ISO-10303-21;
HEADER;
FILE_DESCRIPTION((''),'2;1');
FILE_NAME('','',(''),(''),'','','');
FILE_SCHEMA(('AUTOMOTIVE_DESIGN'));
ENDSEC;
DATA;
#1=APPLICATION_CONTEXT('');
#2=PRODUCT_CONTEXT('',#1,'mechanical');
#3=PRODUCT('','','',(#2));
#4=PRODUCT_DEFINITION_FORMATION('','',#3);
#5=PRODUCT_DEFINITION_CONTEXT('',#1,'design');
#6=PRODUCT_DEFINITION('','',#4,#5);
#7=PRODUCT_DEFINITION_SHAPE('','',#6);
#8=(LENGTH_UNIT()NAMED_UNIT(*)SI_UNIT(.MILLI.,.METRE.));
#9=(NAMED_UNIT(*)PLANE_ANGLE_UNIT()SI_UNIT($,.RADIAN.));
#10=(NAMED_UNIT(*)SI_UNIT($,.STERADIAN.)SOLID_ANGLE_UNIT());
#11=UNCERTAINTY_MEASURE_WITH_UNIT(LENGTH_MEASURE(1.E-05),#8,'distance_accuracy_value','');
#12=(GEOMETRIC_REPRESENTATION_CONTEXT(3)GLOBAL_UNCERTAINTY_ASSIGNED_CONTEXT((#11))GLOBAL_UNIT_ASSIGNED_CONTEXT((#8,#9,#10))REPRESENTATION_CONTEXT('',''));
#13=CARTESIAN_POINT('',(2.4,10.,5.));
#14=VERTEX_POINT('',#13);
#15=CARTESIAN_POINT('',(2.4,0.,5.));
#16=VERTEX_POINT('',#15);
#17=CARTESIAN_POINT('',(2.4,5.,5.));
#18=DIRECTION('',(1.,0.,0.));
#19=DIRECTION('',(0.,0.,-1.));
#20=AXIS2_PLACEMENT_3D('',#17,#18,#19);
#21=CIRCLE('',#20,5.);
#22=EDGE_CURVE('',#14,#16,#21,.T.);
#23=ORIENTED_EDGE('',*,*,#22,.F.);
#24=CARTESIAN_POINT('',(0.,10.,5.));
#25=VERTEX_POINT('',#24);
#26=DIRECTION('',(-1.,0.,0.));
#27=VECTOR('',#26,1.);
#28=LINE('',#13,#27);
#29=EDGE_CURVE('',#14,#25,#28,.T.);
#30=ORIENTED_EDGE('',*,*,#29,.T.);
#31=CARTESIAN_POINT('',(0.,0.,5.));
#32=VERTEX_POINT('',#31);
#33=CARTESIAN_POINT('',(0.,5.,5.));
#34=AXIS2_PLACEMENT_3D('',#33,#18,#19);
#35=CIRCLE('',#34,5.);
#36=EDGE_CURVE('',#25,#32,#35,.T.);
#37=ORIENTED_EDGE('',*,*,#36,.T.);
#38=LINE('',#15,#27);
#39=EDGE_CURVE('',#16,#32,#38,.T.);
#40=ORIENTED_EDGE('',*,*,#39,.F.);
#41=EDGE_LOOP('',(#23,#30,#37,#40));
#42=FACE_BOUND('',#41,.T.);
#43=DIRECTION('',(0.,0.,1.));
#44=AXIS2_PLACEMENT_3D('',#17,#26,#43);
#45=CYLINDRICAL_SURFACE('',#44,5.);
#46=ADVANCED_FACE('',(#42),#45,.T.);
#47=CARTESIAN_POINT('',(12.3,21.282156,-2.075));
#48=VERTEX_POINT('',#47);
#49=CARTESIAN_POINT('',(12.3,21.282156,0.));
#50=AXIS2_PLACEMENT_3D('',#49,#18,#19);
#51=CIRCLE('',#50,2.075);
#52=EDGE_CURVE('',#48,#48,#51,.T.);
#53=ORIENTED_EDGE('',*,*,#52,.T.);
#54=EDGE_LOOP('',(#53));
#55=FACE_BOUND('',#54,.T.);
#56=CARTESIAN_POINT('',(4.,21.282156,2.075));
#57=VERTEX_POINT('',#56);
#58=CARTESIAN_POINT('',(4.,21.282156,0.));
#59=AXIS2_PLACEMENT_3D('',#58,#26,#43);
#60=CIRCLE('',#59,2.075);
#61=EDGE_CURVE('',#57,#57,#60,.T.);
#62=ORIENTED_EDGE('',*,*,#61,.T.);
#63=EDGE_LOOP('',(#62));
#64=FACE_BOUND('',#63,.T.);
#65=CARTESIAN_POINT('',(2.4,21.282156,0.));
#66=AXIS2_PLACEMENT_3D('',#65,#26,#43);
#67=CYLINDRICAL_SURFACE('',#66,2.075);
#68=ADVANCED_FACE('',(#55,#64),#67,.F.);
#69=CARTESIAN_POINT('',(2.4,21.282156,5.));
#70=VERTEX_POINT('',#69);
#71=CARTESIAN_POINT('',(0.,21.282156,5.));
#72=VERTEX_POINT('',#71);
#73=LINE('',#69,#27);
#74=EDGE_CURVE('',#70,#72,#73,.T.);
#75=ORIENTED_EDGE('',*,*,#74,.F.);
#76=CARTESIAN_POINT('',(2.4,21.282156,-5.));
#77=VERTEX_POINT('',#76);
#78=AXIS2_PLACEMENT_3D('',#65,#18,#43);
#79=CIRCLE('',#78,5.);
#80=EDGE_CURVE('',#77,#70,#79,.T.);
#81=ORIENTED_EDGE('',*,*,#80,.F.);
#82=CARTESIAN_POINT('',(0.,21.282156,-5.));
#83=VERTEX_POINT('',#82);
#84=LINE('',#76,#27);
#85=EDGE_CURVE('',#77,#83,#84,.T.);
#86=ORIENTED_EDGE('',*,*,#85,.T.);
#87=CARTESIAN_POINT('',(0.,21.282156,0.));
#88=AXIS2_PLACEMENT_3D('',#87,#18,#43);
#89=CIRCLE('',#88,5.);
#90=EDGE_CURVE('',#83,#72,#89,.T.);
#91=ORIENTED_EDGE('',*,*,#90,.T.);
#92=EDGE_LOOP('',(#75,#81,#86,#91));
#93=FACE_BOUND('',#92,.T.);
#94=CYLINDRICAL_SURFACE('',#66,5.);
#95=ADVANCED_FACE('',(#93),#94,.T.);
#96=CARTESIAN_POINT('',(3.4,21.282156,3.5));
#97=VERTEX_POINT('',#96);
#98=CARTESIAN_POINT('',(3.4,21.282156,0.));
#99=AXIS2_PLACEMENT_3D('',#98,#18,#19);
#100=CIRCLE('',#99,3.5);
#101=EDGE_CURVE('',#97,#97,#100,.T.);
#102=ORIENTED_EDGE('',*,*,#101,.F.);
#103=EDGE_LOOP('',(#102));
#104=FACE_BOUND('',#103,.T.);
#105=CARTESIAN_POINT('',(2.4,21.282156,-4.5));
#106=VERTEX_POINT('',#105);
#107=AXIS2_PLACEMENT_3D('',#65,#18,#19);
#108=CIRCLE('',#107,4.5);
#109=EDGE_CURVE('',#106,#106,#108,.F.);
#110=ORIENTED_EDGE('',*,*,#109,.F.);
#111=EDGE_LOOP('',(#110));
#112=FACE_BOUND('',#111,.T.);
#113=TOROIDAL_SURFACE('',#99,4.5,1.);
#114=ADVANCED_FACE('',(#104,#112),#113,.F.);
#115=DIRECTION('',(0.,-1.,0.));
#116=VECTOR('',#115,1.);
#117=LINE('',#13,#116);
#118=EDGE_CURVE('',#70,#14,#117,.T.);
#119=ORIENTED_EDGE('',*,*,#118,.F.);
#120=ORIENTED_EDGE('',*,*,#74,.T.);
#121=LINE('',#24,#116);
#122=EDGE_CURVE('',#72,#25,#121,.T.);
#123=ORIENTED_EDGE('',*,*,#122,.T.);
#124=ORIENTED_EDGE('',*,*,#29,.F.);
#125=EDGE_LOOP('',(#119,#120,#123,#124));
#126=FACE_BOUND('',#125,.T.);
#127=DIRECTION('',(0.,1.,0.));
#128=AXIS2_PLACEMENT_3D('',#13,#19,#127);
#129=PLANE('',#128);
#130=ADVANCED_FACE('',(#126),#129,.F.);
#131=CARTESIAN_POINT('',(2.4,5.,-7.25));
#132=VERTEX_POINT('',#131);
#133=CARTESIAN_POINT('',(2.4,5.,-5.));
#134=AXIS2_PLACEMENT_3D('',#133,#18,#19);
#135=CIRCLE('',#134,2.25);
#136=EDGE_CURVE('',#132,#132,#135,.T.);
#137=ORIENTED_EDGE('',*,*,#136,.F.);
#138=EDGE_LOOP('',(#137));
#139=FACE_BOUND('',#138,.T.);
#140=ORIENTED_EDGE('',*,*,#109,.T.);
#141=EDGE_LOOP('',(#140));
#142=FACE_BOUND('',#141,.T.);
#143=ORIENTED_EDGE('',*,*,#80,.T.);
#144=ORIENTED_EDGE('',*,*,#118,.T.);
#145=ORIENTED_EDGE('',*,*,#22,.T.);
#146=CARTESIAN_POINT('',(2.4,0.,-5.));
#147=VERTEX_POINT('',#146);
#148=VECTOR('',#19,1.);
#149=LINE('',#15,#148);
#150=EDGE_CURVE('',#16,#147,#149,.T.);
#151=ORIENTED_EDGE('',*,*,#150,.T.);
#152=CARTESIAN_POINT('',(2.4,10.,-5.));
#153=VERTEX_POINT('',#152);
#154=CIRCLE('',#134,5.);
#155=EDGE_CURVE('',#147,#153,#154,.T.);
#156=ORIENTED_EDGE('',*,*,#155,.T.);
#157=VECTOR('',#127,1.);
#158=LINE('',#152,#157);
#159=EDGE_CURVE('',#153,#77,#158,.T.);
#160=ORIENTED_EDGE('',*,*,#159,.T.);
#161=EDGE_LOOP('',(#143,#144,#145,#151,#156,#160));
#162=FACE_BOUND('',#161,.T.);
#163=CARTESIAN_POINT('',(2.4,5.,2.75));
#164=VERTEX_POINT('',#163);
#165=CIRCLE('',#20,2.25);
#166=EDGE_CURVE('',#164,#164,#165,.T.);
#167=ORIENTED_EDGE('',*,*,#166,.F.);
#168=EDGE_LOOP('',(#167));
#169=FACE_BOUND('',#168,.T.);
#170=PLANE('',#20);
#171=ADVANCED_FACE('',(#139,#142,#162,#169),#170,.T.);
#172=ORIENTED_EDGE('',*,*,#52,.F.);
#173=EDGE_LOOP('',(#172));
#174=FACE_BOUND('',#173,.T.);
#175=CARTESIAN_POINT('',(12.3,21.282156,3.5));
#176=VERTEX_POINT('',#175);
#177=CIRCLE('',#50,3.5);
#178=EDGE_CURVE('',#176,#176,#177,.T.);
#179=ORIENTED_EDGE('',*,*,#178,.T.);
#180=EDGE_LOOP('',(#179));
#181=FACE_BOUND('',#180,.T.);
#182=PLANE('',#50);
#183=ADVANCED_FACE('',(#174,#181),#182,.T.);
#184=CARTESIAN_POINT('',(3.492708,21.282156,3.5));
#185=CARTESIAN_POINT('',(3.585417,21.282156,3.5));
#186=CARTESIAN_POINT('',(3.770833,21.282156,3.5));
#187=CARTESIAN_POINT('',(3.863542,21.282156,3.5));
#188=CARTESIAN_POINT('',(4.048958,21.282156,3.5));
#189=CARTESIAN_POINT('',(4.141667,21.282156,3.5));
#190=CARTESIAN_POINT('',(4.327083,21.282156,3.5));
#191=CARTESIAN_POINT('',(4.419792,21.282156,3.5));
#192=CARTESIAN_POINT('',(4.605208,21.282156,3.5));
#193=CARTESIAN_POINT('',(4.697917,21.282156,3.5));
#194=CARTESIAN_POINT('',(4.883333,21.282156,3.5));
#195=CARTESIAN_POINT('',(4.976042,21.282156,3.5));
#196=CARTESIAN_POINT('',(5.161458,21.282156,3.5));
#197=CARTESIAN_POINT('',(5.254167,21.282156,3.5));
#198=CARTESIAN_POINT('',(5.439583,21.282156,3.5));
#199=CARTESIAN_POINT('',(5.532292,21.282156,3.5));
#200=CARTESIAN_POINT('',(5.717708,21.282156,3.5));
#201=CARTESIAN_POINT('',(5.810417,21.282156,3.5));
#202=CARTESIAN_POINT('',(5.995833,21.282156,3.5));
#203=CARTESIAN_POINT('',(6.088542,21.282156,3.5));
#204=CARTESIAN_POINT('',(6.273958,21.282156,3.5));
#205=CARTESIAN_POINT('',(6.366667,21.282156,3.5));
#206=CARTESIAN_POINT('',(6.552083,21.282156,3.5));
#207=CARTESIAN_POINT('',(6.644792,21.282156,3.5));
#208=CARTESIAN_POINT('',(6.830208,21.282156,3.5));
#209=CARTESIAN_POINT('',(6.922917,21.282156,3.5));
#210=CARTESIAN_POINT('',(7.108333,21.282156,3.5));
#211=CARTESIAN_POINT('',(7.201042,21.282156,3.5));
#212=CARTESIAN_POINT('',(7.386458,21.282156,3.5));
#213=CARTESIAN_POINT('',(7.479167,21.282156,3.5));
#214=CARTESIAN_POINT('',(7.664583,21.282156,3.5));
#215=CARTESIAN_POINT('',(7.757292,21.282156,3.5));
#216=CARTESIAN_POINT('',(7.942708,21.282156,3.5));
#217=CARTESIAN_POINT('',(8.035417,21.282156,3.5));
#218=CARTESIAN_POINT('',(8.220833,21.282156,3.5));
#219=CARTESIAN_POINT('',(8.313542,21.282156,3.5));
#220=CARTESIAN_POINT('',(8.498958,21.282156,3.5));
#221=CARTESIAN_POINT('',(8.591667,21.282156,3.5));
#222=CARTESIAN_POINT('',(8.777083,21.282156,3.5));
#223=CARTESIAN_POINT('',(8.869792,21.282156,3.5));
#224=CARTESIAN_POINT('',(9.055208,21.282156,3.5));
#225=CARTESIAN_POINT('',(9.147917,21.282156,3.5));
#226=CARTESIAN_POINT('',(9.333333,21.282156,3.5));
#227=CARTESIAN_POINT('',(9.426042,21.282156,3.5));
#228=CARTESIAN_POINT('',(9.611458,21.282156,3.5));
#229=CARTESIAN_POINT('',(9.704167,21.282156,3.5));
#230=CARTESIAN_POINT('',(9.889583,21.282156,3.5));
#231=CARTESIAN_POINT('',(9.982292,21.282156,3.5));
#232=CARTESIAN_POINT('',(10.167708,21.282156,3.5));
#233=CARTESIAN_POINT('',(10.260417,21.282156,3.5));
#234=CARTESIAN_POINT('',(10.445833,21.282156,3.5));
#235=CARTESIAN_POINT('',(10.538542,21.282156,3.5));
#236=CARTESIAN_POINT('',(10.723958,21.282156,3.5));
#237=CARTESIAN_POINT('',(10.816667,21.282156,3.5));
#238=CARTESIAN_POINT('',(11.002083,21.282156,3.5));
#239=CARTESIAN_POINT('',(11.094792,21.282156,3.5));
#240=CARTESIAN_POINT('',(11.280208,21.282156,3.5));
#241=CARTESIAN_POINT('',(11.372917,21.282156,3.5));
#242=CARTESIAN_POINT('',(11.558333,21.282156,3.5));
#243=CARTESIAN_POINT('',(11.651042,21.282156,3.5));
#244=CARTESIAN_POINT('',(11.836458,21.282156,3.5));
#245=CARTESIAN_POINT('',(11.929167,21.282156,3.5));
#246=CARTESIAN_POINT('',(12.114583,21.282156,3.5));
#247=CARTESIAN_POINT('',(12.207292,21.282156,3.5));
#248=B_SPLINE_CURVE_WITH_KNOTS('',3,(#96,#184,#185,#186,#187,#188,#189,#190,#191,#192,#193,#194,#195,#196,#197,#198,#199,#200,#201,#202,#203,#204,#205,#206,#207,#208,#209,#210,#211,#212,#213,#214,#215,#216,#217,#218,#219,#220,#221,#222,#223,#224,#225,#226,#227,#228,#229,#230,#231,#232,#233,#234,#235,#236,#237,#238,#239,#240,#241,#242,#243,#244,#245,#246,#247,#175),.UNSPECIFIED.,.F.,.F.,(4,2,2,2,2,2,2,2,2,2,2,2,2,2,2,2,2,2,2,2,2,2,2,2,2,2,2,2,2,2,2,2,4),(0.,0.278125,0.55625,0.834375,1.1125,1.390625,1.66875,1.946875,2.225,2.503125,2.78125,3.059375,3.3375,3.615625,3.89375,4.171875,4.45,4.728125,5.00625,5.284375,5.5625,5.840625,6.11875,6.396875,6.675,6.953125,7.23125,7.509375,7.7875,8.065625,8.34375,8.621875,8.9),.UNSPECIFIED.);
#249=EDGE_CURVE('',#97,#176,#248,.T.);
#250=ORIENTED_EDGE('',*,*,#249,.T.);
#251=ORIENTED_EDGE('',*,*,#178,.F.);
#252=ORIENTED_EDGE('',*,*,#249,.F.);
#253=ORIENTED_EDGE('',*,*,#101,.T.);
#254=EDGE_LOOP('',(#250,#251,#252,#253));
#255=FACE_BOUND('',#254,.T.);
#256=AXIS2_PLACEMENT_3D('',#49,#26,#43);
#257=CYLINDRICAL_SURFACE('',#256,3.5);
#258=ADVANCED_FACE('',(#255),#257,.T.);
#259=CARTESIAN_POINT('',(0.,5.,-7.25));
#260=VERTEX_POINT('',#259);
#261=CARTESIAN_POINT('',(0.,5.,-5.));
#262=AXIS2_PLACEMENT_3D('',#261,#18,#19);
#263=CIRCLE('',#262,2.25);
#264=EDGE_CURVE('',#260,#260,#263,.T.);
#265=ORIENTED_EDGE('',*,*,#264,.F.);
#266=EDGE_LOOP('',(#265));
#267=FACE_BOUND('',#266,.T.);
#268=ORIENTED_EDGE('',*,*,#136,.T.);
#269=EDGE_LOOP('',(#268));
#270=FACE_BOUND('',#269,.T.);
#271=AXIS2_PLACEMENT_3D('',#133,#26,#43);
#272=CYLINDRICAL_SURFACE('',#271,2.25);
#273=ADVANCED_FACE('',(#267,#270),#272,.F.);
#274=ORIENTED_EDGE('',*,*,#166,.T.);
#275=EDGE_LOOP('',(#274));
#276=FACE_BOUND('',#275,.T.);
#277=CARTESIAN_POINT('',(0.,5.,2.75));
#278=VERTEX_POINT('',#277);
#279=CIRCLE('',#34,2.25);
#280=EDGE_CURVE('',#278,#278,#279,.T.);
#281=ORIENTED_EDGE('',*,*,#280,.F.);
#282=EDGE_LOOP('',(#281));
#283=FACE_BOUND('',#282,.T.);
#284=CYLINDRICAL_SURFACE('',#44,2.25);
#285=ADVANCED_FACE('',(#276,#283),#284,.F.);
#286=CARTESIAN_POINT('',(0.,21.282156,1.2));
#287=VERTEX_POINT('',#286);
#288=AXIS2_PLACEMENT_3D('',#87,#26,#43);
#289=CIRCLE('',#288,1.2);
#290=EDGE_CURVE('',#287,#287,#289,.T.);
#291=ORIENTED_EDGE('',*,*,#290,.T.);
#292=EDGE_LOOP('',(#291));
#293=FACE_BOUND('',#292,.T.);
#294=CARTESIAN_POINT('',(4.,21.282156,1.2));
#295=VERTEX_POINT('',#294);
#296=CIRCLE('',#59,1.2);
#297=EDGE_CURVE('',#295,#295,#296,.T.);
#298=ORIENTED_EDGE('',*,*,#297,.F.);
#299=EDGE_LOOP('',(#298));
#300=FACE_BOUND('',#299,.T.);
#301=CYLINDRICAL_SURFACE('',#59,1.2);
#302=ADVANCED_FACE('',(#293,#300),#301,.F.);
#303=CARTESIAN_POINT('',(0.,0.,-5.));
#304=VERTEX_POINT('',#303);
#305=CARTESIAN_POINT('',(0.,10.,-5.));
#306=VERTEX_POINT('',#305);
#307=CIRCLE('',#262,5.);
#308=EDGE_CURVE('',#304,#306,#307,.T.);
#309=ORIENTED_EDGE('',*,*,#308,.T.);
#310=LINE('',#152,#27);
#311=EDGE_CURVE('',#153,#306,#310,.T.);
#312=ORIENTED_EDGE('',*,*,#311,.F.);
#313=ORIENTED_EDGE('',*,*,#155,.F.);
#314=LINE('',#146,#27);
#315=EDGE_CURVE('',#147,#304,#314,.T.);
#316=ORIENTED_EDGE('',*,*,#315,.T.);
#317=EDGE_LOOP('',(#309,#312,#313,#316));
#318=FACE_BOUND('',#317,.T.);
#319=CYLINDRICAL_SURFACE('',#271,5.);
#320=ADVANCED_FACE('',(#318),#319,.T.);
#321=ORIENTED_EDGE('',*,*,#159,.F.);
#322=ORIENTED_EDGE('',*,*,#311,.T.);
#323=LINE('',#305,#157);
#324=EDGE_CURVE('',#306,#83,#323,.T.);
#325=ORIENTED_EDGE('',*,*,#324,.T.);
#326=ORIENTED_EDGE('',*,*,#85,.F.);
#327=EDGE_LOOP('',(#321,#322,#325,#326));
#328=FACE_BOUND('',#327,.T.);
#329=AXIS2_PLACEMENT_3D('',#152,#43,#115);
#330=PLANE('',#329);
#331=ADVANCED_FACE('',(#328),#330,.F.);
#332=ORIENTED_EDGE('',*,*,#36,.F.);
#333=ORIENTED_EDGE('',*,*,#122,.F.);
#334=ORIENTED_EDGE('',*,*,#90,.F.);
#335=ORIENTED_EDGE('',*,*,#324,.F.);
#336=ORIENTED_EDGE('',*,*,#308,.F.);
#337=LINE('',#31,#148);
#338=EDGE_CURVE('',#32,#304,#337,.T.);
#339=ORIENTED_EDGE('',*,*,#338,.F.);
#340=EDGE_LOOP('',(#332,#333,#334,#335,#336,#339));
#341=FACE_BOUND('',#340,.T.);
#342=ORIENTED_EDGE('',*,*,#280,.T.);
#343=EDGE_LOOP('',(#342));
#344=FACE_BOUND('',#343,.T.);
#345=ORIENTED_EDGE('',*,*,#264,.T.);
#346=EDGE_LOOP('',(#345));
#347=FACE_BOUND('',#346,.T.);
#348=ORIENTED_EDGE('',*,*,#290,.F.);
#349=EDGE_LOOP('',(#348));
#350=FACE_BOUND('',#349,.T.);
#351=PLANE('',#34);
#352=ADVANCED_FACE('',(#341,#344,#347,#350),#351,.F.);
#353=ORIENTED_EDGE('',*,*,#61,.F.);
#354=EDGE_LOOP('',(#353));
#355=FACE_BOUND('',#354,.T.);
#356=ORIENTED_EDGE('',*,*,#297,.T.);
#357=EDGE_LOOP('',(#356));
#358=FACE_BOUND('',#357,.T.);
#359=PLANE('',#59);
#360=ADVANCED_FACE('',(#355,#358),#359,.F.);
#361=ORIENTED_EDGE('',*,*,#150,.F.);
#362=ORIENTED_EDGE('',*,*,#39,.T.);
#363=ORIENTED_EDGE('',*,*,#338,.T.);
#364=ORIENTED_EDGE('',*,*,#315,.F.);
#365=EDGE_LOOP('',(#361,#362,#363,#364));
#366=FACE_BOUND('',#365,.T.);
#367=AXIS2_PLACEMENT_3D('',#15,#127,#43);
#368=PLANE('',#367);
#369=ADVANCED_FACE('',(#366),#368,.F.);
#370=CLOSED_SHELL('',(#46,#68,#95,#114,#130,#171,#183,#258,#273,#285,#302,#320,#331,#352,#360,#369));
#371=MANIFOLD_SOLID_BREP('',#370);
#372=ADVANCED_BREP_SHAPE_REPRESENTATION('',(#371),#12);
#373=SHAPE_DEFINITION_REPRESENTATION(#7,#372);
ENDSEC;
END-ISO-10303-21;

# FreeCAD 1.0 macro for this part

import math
import FreeCAD as App
import Part
import Sketcher
Q = App.Units.Quantity


def edges_at(feature, points):
    """Names of the edges that pass closest to the given points."""
    edges = feature.Shape.Edges
    near = lambda p: min(range(len(edges)), key=lambda i: edges[i].distToShape(Part.Vertex(*p))[0])
    return sorted({f"Edge{near(p) + 1}" for p in points})

doc = App.newDocument("Part")
body = doc.addObject("PartDesign::Body", "Body")

# Sketch on YZ plane
sketch1 = body.newObject("Sketcher::SketchObject", "Sketch")
sketch1.AttachmentSupport = (doc.getObject("YZ_Plane"), [""])
sketch1.MapMode = "FlatFace"
sketch1.addGeometry([
    Part.LineSegment(App.Vector(0, 5, 0), App.Vector(0, -5, 0)),  # 0
    Part.ArcOfCircle(Part.Circle(App.Vector(5, -5, 0), App.Vector(0, 0, 1), 5), math.radians(180), math.radians(360)),  # 1
    Part.LineSegment(App.Vector(10, -5, 0), App.Vector(21.3, -5, 0)),  # 2
    Part.ArcOfCircle(Part.Circle(App.Vector(21.3, 0, 0), App.Vector(0, 0, 1), 5), math.radians(-90), math.radians(90)),  # 3
    Part.LineSegment(App.Vector(21.3, 5, 0), App.Vector(10, 5, 0)),  # 4
    Part.ArcOfCircle(Part.Circle(App.Vector(5, 5, 0), App.Vector(0, 0, 1), 5), math.radians(0), math.radians(180)),  # 5
    Part.Circle(App.Vector(5, 5, 0), App.Vector(0, 0, 1), 2.2),  # 6
    Part.Circle(App.Vector(5, -5, 0), App.Vector(0, 0, 1), 2.2),  # 7
    Part.Circle(App.Vector(21.3, 0, 0), App.Vector(0, 0, 1), 2.1),  # 8
], False)
sketch1.addConstraint([
    Sketcher.Constraint("Tangent", 0, 2, 1, 1),
    Sketcher.Constraint("Coincident", 1, 2, 2, 1),
    Sketcher.Constraint("Tangent", 2, 2, 3, 1),
    Sketcher.Constraint("Tangent", 3, 2, 4, 1),
    Sketcher.Constraint("Coincident", 4, 2, 5, 1),
    Sketcher.Constraint("Tangent", 5, 2, 0, 1),
    Sketcher.Constraint("Vertical", 0),
    Sketcher.Constraint("Horizontal", 2),
    Sketcher.Constraint("Horizontal", 4),
    Sketcher.Constraint("Coincident", 6, 3, 5, 3),
    Sketcher.Constraint("Coincident", 7, 3, 1, 3),
    Sketcher.Constraint("Coincident", 8, 3, 3, 3),
    Sketcher.Constraint("Equal", 1, 3),
    Sketcher.Constraint("Equal", 3, 5),
    Sketcher.Constraint("Equal", 6, 7),
    Sketcher.Constraint("Symmetric", 0, 2, 5, 2, -1, 1),
    Sketcher.Constraint("PointOnObject", 3, 3, -1),
    Sketcher.Constraint("Horizontal", 0, 2, 1, 2),
    Sketcher.Constraint("Radius", 1, Q("5 mm")),
    Sketcher.Constraint("Diameter", 6, Q("4.5 mm")),
    Sketcher.Constraint("Diameter", 8, Q("4.15 mm")),
    Sketcher.Constraint("DistanceX", 2, 1, 2, 2, Q("11.282156 mm")),
])
pad1 = body.newObject("PartDesign::Pad", "Pad")
pad1.Profile = sketch1
pad1.Length = 2.4

# Sketch on YZ plane
sketch2 = body.newObject("Sketcher::SketchObject", "Sketch001")
sketch2.AttachmentSupport = (doc.getObject("YZ_Plane"), [""])
sketch2.MapMode = "FlatFace"
sketch2.AttachmentOffset = App.Placement(App.Vector(0, 0, 2.4), App.Rotation())
sketch2.addGeometry([
    Part.Circle(App.Vector(21.3, 0, 0), App.Vector(0, 0, 1), 3.5),
    Part.Circle(App.Vector(21.3, 0, 0), App.Vector(0, 0, 1), 2.1),
], False)
sketch2.addConstraint([
    Sketcher.Constraint("Coincident", 1, 3, 0, 3),
    Sketcher.Constraint("PointOnObject", 0, 3, -1),
    Sketcher.Constraint("Diameter", 0, Q("7 mm")),
    Sketcher.Constraint("Diameter", 1, Q("4.15 mm")),
    Sketcher.Constraint("DistanceX", -1, 1, 0, 3, Q("21.282156 mm")),
])
pad2 = body.newObject("PartDesign::Pad", "Pad001")
pad2.Profile = sketch2
pad2.Length = 9.9
doc.recompute()

fillet = body.newObject("PartDesign::Fillet", "Fillet")
fillet.Base = (pad2, edges_at(pad2, [(2.4, 21.282, -3.5)]))
fillet.Radius = 1

# Sketch on YZ plane
sketch3 = body.newObject("Sketcher::SketchObject", "Sketch002")
sketch3.AttachmentSupport = (doc.getObject("YZ_Plane"), [""])
sketch3.MapMode = "FlatFace"
sketch3.addGeometry([
    Part.Circle(App.Vector(21.3, 0, 0), App.Vector(0, 0, 1), 2.1),
    Part.Circle(App.Vector(21.3, 0, 0), App.Vector(0, 0, 1), 1.2),
], False)
sketch3.addConstraint([
    Sketcher.Constraint("Coincident", 1, 3, 0, 3),
    Sketcher.Constraint("PointOnObject", 0, 3, -1),
    Sketcher.Constraint("Diameter", 1, Q("2.4 mm")),
    Sketcher.Constraint("Diameter", 0, Q("4.15 mm")),
    Sketcher.Constraint("DistanceX", -1, 1, 0, 3, Q("21.282156 mm")),
])
pad3 = body.newObject("PartDesign::Pad", "Pad002")
pad3.Profile = sketch3
pad3.Length = 4

doc.recompute()
